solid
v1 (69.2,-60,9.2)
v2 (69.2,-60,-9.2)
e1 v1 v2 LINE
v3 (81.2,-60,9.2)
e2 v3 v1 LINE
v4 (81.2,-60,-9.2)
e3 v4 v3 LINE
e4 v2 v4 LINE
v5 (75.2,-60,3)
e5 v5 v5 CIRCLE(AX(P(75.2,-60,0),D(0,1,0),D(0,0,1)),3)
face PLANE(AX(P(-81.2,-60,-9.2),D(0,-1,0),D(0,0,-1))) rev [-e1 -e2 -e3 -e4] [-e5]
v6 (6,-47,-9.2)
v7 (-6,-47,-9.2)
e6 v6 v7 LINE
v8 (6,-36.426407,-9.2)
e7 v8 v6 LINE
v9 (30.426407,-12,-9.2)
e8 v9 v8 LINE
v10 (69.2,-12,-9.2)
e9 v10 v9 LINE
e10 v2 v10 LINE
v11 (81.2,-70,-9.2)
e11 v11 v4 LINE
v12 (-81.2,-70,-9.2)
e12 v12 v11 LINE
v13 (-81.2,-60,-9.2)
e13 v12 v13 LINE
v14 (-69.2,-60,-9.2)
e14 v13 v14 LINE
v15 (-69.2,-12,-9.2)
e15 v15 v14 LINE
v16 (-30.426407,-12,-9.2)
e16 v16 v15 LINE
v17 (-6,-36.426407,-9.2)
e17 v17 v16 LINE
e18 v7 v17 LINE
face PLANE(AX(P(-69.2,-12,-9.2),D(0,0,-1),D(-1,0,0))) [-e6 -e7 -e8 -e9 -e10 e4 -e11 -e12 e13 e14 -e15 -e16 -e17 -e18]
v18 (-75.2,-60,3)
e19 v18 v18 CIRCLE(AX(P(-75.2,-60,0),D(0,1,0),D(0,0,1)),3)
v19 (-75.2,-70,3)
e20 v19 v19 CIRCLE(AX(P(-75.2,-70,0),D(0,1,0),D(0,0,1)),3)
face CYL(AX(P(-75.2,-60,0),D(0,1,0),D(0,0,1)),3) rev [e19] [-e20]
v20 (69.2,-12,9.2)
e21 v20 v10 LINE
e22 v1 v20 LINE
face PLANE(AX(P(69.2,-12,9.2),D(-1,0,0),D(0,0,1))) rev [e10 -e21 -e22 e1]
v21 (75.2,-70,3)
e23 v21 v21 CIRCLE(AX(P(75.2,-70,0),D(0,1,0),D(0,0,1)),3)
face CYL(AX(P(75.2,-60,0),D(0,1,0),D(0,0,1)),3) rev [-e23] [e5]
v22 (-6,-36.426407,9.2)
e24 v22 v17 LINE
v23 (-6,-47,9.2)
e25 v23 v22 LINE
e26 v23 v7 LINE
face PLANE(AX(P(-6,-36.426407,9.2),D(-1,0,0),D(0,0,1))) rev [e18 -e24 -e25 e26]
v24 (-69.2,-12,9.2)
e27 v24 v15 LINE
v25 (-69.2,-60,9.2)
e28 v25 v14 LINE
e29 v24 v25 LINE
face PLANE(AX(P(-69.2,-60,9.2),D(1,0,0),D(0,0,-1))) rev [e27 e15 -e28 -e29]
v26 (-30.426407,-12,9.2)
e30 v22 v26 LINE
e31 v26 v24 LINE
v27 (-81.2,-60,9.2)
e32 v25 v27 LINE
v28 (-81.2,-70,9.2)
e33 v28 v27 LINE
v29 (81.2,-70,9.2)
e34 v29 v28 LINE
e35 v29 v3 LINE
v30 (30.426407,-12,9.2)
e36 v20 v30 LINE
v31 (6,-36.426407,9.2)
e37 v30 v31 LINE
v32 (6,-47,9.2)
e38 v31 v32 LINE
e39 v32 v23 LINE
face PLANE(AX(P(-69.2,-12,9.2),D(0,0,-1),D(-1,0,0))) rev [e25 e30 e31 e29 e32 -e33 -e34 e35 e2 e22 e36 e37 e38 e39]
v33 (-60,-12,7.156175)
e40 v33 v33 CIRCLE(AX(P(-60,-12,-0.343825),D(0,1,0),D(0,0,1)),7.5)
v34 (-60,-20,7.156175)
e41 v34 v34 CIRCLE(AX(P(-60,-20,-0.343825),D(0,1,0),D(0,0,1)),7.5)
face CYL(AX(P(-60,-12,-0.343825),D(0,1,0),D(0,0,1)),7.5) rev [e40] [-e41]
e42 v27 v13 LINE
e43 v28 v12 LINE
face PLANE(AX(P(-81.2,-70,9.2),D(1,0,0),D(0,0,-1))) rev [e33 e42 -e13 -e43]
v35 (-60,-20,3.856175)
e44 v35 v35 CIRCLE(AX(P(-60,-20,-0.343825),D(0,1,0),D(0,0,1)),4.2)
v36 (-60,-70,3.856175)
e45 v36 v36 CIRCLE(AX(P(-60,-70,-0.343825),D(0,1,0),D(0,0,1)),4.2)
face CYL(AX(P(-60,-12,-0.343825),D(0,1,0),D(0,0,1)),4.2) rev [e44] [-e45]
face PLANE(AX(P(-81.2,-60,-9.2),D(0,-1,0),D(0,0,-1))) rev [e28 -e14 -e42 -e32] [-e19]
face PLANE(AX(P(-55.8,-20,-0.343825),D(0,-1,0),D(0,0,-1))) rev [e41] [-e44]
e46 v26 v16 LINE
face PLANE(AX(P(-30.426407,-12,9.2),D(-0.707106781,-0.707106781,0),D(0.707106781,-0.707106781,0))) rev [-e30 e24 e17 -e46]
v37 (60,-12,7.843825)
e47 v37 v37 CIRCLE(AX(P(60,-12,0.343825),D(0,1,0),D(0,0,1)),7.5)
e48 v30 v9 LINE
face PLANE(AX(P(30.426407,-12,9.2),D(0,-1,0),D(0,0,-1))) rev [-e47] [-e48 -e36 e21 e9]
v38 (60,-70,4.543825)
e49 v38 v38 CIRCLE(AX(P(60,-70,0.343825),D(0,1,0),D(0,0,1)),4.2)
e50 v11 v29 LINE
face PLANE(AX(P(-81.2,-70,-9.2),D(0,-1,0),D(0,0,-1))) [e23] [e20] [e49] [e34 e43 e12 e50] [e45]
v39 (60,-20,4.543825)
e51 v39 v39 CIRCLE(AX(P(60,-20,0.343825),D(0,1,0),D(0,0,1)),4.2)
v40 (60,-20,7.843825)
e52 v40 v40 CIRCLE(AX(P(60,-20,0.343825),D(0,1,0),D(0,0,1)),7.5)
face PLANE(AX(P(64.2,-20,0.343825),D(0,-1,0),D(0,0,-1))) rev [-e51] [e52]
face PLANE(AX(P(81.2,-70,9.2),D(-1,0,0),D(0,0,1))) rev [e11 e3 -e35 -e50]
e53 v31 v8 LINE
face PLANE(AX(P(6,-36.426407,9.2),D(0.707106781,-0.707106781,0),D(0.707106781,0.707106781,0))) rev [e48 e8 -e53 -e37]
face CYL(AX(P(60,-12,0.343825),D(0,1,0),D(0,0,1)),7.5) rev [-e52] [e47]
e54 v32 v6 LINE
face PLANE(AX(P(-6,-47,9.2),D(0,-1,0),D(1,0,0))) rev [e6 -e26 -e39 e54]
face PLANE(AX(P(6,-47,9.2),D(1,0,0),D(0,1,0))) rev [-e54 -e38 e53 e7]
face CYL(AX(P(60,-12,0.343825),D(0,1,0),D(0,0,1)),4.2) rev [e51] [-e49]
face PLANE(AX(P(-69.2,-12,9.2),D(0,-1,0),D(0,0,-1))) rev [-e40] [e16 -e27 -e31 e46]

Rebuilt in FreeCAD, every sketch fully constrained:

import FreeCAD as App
import Part
import Sketcher
Q = App.Units.Quantity


def add_polygon(sketch, points):
    """Adds a closed chain of lines whose ends are joined by coincident constraints."""
    first, n = sketch.GeometryCount, len(points)
    for a, b in zip(points, points[1:] + points[:1]):
        sketch.addGeometry(Part.LineSegment(App.Vector(*a, 0), App.Vector(*b, 0)), False)
    for i in range(n):
        sketch.addConstraint(Sketcher.Constraint("Coincident", first + i, 2, first + (i + 1) % n, 1))

doc = App.newDocument("Part")
params = doc.addObject("Spreadsheet::Sheet", "Params")
for row, (alias, value) in enumerate([
    ("sketch1_width", "12 mm"),
    ("sketch1_height", "48 mm"),
    ("sketch1_width2", "138.4 mm"),
    ("pad1_length", "18.4 mm"),
    ("sketch2_width", "162.4 mm"),
    ("sketch2_height", "18.4 mm"),
    ("pad2_length", "10 mm"),
    ("sketch3_diameter", "8.4 mm"),
    ("hole_diameter", "8.4 mm"),
    ("hole_cbore_diameter", "15 mm"),
    ("hole_cbore_depth", "8 mm"),
    ("sketch4_diameter", "6 mm"),
    ("hole2_diameter", "6 mm"),
], start=1):
    params.set(f"A{row}", alias)
    params.set(f"B{row}", "=" + value)
    params.setAlias(f"B{row}", alias)

body = doc.addObject("PartDesign::Body", "Body")

# Sketch on XY plane
sketch1 = doc.addObject("Sketcher::SketchObject", "Sketch")
body.addObject(sketch1)
sketch1.AttachmentSupport = (doc.XY_Plane, [""])
sketch1.MapMode = "FlatFace"
add_polygon(sketch1, [(-30, -12), (-69, -12), (-69, -60), (69, -60), (69, -12), (30, -12), (6, -36), (6, -47), (-6, -47), (-6, -36)])  # lines 0-9
sketch1.addConstraint([
    Sketcher.Constraint("Horizontal", 0),
    Sketcher.Constraint("Vertical", 1),
    Sketcher.Constraint("Horizontal", 2),
    Sketcher.Constraint("Vertical", 3),
    Sketcher.Constraint("Horizontal", 4),
    Sketcher.Constraint("Vertical", 6),
    Sketcher.Constraint("Horizontal", 7),
    Sketcher.Constraint("Vertical", 8),
    Sketcher.Constraint("Symmetric", 0, 2, 3, 2, -2),
    Sketcher.Constraint("Symmetric", 5, 2, 8, 2, -2),
    Sketcher.Constraint("Perpendicular", 5, 9),
    Sketcher.Constraint("Equal", 0, 4),
    Sketcher.Constraint("DistanceX", 7, 2, 7, 1, Q("12 mm")),
    Sketcher.Constraint("DistanceY", 1, 2, 1, 1, Q("48 mm")),
    Sketcher.Constraint("DistanceX", 2, 1, 2, 2, Q("138.4 mm")),
    Sketcher.Constraint("DistanceY", 0, 2, -1, 1, Q("12 mm")),
    Sketcher.Constraint("DistanceY", 6, 2, -1, 1, Q("47 mm")),
    Sketcher.Constraint("DistanceX", 0, 2, 0, 1, Q("38.773593 mm")),
])
sketch1.setExpression("Constraints[22]", "Params.sketch1_width")
sketch1.setExpression("Constraints[23]", "Params.sketch1_height")
sketch1.setExpression("Constraints[24]", "Params.sketch1_width2")
pad1 = doc.addObject("PartDesign::Pad", "Pad")
body.addObject(pad1)
pad1.Profile = sketch1
pad1.setExpression("Length", "Params.pad1_length")
pad1.Midplane = True

# Sketch on XZ plane
sketch2 = doc.addObject("Sketcher::SketchObject", "Sketch001")
body.addObject(sketch2)
sketch2.AttachmentSupport = (doc.XZ_Plane, [""])
sketch2.MapMode = "FlatFace"
sketch2.AttachmentOffset = App.Placement(App.Vector(0, 0, 60), App.Rotation())
add_polygon(sketch2, [(-81, 9), (-81, -9), (81, -9), (81, 9)])  # lines 0-3
sketch2.addConstraint([
    Sketcher.Constraint("Vertical", 0),
    Sketcher.Constraint("Horizontal", 1),
    Sketcher.Constraint("Vertical", 2),
    Sketcher.Constraint("Horizontal", 3),
    Sketcher.Constraint("Symmetric", 0, 2, 2, 2, -1, 1),
    Sketcher.Constraint("DistanceX", 1, 1, 1, 2, Q("162.4 mm")),
    Sketcher.Constraint("DistanceY", 0, 2, 0, 1, Q("18.4 mm")),
])
sketch2.setExpression("Constraints[9]", "Params.sketch2_width")
sketch2.setExpression("Constraints[10]", "Params.sketch2_height")
pad2 = doc.addObject("PartDesign::Pad", "Pad001")
body.addObject(pad2)
pad2.Profile = sketch2
pad2.setExpression("Length", "Params.pad2_length")

# Sketch on XZ plane
sketch3 = doc.addObject("Sketcher::SketchObject", "Sketch002")
body.addObject(sketch3)
sketch3.AttachmentSupport = (doc.XZ_Plane, [""])
sketch3.MapMode = "FlatFace"
sketch3.AttachmentOffset = App.Placement(App.Vector(0, 0, 12), App.Rotation())
sketch3.addGeometry([
    Part.Circle(App.Vector(60, 0.3, 0), App.Vector(0, 0, 1), 4.2),
    Part.Circle(App.Vector(-60, -0.3, 0), App.Vector(0, 0, 1), 4.2),
], False)
sketch3.addConstraint([
    Sketcher.Constraint("Equal", 0, 1),
    Sketcher.Constraint("Symmetric", 0, 3, 1, 3, -1, 1),
    Sketcher.Constraint("Diameter", 0, Q("8.4 mm")),
    Sketcher.Constraint("DistanceX", -1, 1, 0, 3, Q("60 mm")),
    Sketcher.Constraint("DistanceY", 1, 3, 0, 3, Q("0.68765 mm")),
])
sketch3.setExpression("Constraints[2]", "Params.sketch3_diameter")
doc.recompute()
hole = doc.addObject("PartDesign::Hole", "Hole")
body.addObject(hole)
hole.Profile = sketch3
hole.ThreadType = "None"
hole.setExpression("Diameter", "Params.hole_diameter")
hole.DepthType = "ThroughAll"
hole.HoleCutType = "Counterbore"
hole.setExpression("HoleCutDiameter", "Params.hole_cbore_diameter")
hole.setExpression("HoleCutDepth", "Params.hole_cbore_depth")
hole.Reversed = True

# Sketch on XZ plane
sketch4 = doc.addObject("Sketcher::SketchObject", "Sketch003")
body.addObject(sketch4)
sketch4.AttachmentSupport = (doc.XZ_Plane, [""])
sketch4.MapMode = "FlatFace"
sketch4.AttachmentOffset = App.Placement(App.Vector(0, 0, 60), App.Rotation())
sketch4.addGeometry([
    Part.Circle(App.Vector(75.2, 0, 0), App.Vector(0, 0, 1), 3),
    Part.Circle(App.Vector(-75.2, 0, 0), App.Vector(0, 0, 1), 3),
], False)
sketch4.addConstraint([
    Sketcher.Constraint("Equal", 0, 1),
    Sketcher.Constraint("Symmetric", 0, 3, 1, 3, -1, 1),
    Sketcher.Constraint("PointOnObject", 0, 3, -1),
    Sketcher.Constraint("Diameter", 0, Q("6 mm")),
    Sketcher.Constraint("DistanceX", -1, 1, 0, 3, Q("75.2 mm")),
])
sketch4.setExpression("Constraints[3]", "Params.sketch4_diameter")
doc.recompute()
hole2 = doc.addObject("PartDesign::Hole", "Hole001")
body.addObject(hole2)
hole2.Profile = sketch4
hole2.ThreadType = "None"
hole2.setExpression("Diameter", "Params.hole2_diameter")
hole2.DepthType = "ThroughAll"
hole2.Reversed = True

doc.recompute()
